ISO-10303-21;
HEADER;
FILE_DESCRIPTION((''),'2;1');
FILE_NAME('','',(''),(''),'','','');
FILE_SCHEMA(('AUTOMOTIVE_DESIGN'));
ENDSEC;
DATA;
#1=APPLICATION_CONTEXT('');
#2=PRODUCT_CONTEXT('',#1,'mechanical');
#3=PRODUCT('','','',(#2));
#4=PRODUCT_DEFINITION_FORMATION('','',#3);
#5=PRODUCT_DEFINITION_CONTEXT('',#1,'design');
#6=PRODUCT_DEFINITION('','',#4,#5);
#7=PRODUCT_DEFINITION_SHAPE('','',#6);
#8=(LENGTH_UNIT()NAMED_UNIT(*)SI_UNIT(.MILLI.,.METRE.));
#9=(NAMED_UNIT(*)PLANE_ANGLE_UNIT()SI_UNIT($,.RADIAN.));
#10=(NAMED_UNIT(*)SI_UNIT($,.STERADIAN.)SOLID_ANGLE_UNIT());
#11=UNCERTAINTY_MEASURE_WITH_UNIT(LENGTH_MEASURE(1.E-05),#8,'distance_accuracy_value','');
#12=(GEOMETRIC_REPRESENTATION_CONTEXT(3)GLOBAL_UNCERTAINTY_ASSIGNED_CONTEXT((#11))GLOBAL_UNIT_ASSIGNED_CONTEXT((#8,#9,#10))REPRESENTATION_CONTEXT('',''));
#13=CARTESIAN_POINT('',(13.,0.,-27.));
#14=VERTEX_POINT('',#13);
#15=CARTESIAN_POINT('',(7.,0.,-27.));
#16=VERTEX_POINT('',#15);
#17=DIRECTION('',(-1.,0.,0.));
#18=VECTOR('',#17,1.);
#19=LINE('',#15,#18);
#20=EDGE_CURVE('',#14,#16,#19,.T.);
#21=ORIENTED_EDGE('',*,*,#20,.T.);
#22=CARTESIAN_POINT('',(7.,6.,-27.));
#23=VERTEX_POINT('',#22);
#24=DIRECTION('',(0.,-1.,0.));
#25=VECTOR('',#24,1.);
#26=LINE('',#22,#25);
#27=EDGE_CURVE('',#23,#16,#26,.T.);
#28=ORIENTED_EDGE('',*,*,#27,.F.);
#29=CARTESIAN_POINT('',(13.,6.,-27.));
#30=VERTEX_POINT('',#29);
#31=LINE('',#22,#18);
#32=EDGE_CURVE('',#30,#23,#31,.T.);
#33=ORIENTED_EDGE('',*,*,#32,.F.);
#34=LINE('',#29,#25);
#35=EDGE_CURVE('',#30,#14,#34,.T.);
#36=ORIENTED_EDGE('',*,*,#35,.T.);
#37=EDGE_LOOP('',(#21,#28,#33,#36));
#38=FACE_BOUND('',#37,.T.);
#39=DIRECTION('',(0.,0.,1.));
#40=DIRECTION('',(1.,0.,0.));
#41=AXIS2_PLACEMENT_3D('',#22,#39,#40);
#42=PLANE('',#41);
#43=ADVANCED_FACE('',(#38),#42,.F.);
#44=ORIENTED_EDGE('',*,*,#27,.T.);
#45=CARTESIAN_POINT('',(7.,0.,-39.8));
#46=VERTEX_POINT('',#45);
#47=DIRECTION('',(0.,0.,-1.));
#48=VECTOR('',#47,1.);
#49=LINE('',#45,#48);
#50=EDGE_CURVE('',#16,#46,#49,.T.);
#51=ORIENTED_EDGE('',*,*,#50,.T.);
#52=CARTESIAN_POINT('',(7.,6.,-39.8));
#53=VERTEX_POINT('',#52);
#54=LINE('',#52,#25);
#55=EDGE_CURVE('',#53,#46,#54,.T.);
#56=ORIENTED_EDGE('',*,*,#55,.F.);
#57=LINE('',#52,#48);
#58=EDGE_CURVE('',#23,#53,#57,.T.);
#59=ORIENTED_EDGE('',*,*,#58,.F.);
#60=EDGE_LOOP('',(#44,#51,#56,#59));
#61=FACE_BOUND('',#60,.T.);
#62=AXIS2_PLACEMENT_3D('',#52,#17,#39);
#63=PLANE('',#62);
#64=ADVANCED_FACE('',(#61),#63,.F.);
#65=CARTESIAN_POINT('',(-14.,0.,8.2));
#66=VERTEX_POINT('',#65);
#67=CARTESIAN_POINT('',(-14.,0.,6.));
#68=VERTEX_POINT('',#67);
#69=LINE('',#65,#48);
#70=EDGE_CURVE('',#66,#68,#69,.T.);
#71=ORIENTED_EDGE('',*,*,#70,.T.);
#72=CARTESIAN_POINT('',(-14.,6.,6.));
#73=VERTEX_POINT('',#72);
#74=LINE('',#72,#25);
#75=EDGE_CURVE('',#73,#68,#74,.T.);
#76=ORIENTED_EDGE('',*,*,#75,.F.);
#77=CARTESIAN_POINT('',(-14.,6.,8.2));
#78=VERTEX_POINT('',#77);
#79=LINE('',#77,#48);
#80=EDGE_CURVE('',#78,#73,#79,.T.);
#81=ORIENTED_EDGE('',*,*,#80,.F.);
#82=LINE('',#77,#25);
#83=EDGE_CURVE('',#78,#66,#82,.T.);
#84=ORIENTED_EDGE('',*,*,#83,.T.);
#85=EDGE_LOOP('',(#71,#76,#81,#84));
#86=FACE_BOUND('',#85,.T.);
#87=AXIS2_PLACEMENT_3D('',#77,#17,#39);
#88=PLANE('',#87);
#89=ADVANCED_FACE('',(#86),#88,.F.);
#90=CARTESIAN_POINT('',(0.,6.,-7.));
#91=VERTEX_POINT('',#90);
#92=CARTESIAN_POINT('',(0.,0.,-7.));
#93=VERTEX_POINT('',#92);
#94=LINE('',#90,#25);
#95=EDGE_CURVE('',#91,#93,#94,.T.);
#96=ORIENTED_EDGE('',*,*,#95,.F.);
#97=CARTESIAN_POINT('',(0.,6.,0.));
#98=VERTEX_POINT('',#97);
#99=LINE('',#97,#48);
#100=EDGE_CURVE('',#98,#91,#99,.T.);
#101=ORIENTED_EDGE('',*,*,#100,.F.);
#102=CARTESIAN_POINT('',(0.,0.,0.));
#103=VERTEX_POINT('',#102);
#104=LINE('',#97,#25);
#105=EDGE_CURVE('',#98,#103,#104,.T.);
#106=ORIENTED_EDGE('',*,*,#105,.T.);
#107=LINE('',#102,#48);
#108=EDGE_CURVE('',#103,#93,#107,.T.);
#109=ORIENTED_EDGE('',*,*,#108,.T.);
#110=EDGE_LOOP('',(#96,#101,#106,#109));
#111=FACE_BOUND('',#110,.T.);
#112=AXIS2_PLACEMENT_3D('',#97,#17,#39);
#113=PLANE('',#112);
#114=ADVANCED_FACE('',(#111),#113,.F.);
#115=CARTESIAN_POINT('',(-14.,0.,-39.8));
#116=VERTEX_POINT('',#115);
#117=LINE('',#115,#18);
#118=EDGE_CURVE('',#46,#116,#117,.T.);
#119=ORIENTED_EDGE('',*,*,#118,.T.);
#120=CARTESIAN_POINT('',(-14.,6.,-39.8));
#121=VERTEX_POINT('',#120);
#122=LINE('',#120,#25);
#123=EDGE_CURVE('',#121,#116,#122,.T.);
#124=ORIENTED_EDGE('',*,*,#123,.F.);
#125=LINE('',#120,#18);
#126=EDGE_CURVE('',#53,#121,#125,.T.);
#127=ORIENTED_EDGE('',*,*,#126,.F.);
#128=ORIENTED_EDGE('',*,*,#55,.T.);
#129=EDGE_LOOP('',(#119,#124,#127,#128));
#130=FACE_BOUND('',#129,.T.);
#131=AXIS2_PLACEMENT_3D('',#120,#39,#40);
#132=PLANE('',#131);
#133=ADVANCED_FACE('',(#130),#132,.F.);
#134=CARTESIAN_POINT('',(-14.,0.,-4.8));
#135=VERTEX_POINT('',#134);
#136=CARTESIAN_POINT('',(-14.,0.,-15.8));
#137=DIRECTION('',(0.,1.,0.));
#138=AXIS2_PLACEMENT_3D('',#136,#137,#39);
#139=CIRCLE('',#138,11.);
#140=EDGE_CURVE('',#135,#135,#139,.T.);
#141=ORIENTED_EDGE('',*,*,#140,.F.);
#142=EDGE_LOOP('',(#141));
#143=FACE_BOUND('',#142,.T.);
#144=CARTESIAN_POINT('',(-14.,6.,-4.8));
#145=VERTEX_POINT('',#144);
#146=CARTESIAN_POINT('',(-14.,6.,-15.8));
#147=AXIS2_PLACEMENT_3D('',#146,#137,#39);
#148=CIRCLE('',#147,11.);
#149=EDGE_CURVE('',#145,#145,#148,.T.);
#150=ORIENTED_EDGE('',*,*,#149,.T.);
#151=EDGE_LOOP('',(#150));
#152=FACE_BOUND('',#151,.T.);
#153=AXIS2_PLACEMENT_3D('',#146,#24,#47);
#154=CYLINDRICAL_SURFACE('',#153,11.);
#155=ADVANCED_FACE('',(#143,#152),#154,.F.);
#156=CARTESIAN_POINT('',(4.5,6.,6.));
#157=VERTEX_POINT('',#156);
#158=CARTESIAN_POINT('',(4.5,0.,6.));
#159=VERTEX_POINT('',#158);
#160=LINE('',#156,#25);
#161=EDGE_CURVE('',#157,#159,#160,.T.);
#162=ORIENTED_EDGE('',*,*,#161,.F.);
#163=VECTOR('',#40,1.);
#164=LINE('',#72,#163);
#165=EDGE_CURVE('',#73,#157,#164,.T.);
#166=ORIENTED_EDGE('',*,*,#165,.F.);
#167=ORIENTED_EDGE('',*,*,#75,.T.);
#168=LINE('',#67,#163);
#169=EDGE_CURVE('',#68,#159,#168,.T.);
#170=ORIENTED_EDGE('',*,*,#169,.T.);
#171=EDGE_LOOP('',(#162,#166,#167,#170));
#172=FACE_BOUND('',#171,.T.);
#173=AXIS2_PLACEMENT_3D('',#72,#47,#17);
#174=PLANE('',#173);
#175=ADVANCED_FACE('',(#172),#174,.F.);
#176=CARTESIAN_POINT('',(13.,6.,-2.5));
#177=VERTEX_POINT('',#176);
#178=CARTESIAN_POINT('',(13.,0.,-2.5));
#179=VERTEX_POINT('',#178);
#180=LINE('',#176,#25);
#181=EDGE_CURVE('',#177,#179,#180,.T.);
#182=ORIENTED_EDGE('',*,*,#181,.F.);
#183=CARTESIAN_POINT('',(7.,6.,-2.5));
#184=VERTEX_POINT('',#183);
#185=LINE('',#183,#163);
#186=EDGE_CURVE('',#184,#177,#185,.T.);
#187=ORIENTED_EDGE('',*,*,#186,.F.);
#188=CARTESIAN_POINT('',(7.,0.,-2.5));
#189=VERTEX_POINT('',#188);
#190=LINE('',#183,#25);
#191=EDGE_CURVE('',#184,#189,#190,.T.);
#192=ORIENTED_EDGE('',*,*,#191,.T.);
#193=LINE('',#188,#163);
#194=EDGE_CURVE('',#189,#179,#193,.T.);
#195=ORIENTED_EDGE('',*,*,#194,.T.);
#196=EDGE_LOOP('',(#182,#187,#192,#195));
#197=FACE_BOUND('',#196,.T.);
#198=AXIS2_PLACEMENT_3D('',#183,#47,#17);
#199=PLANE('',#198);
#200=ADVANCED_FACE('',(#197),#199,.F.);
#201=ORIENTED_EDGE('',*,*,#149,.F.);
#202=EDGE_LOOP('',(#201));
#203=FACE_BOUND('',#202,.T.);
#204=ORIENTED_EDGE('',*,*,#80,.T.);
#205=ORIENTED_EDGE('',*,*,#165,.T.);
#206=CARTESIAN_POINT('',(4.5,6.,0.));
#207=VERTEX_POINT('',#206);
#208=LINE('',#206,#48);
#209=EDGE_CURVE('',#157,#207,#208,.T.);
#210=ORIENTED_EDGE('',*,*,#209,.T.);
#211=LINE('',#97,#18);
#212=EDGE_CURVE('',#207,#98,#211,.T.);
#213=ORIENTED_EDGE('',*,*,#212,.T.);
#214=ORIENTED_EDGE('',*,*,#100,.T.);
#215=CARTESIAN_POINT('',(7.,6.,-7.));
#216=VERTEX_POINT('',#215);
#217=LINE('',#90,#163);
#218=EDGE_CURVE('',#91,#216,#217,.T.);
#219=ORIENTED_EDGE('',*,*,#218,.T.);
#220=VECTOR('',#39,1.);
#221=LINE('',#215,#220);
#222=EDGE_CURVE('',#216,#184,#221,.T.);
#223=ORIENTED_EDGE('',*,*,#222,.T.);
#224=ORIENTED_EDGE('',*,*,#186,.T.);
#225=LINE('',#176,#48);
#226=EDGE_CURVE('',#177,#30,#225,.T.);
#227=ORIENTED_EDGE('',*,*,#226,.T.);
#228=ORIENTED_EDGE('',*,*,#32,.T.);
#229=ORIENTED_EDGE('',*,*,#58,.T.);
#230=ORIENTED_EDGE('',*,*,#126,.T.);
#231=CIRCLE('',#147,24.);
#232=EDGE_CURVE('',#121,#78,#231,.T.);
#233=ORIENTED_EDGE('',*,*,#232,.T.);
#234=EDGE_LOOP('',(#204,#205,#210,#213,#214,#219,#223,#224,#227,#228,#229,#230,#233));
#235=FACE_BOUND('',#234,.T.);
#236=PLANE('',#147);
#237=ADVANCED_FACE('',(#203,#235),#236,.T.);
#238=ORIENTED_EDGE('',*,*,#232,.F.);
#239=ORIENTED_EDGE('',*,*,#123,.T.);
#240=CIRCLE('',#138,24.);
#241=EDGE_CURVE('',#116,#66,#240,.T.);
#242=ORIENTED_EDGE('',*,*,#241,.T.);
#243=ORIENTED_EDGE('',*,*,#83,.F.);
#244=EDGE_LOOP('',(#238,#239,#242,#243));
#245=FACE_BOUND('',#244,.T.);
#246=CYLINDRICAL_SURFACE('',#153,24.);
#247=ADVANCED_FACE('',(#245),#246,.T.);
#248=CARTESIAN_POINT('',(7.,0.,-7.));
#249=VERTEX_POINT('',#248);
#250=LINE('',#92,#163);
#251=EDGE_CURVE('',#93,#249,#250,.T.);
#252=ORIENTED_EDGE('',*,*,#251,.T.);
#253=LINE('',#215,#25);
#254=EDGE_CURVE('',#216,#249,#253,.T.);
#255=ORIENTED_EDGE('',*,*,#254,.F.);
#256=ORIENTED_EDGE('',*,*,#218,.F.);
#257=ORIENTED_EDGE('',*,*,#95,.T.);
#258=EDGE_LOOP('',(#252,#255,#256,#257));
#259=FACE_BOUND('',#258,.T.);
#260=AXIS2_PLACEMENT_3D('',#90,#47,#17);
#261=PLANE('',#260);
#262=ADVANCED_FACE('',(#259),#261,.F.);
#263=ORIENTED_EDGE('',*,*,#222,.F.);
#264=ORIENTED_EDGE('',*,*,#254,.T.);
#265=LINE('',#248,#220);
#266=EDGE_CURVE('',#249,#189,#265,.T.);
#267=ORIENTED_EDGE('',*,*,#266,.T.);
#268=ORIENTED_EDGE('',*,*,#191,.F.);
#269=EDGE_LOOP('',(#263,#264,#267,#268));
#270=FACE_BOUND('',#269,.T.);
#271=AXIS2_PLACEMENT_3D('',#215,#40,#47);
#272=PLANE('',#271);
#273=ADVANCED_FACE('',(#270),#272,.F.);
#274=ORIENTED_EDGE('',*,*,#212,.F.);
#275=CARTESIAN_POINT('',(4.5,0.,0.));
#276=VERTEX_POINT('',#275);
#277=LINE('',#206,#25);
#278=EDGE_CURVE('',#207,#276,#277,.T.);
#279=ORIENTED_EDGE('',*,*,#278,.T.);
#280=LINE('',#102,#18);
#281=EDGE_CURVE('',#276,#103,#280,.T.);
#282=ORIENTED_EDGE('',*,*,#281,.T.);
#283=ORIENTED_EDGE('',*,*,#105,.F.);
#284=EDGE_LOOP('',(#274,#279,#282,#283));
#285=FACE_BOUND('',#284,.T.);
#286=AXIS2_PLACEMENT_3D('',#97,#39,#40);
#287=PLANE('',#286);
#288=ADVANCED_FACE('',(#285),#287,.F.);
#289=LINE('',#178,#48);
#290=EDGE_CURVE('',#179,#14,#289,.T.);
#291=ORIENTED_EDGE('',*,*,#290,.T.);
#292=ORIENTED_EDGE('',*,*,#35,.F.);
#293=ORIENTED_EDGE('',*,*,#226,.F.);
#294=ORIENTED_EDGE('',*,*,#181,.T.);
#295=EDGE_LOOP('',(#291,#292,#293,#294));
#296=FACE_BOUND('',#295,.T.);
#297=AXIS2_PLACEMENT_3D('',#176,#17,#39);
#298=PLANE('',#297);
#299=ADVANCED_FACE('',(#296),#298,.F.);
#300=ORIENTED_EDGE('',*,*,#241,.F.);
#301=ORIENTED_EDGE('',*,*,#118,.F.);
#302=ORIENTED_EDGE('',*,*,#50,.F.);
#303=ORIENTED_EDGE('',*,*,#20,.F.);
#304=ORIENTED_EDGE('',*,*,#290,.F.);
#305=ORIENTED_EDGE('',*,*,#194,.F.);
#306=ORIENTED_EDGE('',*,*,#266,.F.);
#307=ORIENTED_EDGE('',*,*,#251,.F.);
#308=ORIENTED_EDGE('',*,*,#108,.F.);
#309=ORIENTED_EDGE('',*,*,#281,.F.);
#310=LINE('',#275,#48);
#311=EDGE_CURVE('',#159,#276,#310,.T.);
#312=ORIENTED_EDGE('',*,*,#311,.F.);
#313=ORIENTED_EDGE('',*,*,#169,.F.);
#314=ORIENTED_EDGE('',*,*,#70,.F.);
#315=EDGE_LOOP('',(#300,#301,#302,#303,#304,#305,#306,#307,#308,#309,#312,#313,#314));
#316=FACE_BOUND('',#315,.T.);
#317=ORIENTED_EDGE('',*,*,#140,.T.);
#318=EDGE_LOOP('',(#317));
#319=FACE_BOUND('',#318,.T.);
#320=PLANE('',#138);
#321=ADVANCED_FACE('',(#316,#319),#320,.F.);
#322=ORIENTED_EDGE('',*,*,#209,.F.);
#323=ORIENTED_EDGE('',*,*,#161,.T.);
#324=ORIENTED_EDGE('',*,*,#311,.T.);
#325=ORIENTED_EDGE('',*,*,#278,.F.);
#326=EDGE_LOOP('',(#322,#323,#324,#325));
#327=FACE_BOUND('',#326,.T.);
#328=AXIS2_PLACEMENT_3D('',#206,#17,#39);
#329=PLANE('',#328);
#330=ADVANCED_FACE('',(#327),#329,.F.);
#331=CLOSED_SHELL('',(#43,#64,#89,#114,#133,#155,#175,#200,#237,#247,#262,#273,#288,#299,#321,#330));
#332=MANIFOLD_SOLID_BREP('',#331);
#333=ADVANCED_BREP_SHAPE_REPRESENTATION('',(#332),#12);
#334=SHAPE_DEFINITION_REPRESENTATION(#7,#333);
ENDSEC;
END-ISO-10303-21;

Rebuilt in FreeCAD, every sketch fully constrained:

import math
import FreeCAD as App
import Part
import Sketcher

V = App.Vector
Q = App.Units.Quantity

doc = App.newDocument("Part")
body = doc.addObject("PartDesign::Body", "Body")

# Sketch on XZ plane
sketch1 = body.newObject("Sketcher::SketchObject", "Sketch")
sketch1.AttachmentSupport = (doc.getObject("XZ_Plane"), [""])
sketch1.MapMode = "FlatFace"
sketch1.addGeometry(Part.LineSegment(V(0, 0, 0), V(0, -7, 0)), False)
sketch1.addGeometry(Part.LineSegment(V(0, -7, 0), V(7, -7, 0)), False)
sketch1.addGeometry(Part.LineSegment(V(7, -7, 0), V(7, -2.5, 0)), False)
sketch1.addGeometry(Part.LineSegment(V(7, -2.5, 0), V(13, -2.5, 0)), False)
sketch1.addGeometry(Part.LineSegment(V(13, -2.5, 0), V(13, -27, 0)), False)
sketch1.addGeometry(Part.LineSegment(V(13, -27, 0), V(7, -27, 0)), False)
sketch1.addGeometry(Part.LineSegment(V(7, -27, 0), V(7, -39.8, 0)), False)
sketch1.addGeometry(Part.LineSegment(V(7, -39.8, 0), V(-14, -39.8, 0)), False)
sketch1.addGeometry(Part.ArcOfCircle(Part.Circle(V(-14, -15.8, 0), V(0, 0, 1), 24), math.radians(90), math.radians(270)), False)
sketch1.addGeometry(Part.LineSegment(V(-14, 8.2, 0), V(-14, 6, 0)), False)
sketch1.addGeometry(Part.LineSegment(V(-14, 6, 0), V(4.5, 6, 0)), False)
sketch1.addGeometry(Part.LineSegment(V(4.5, 6, 0), V(4.5, 0, 0)), False)
sketch1.addGeometry(Part.LineSegment(V(4.5, 0, 0), V(0, 0, 0)), False)
sketch1.addGeometry(Part.Circle(V(-14, -15.8, 0), V(0, 0, 1), 11), False)
sketch1.addConstraint(Sketcher.Constraint("Coincident", 0, 2, 1, 1))
sketch1.addConstraint(Sketcher.Constraint("Coincident", 1, 2, 2, 1))
sketch1.addConstraint(Sketcher.Constraint("Coincident", 2, 2, 3, 1))
sketch1.addConstraint(Sketcher.Constraint("Coincident", 3, 2, 4, 1))
sketch1.addConstraint(Sketcher.Constraint("Coincident", 4, 2, 5, 1))
sketch1.addConstraint(Sketcher.Constraint("Coincident", 5, 2, 6, 1))
sketch1.addConstraint(Sketcher.Constraint("Coincident", 6, 2, 7, 1))
sketch1.addConstraint(Sketcher.Constraint("Tangent", 7, 2, 8, 2))
sketch1.addConstraint(Sketcher.Constraint("Coincident", 8, 1, 9, 1))
sketch1.addConstraint(Sketcher.Constraint("Coincident", 9, 2, 10, 1))
sketch1.addConstraint(Sketcher.Constraint("Coincident", 10, 2, 11, 1))
sketch1.addConstraint(Sketcher.Constraint("Coincident", 11, 2, 12, 1))
sketch1.addConstraint(Sketcher.Constraint("Coincident", 12, 2, 0, 1))
sketch1.addConstraint(Sketcher.Constraint("Vertical", 0))
sketch1.addConstraint(Sketcher.Constraint("Horizontal", 1))
sketch1.addConstraint(Sketcher.Constraint("Vertical", 2))
sketch1.addConstraint(Sketcher.Constraint("Horizontal", 3))
sketch1.addConstraint(Sketcher.Constraint("Vertical", 4))
sketch1.addConstraint(Sketcher.Constraint("Horizontal", 5))
sketch1.addConstraint(Sketcher.Constraint("Vertical", 6))
sketch1.addConstraint(Sketcher.Constraint("Horizontal", 7))
sketch1.addConstraint(Sketcher.Constraint("Vertical", 9))
sketch1.addConstraint(Sketcher.Constraint("Horizontal", 10))
sketch1.addConstraint(Sketcher.Constraint("Vertical", 11))
sketch1.addConstraint(Sketcher.Constraint("Horizontal", 12))
sketch1.addConstraint(Sketcher.Constraint("Coincident", 12, 2, -1, 1))
sketch1.addConstraint(Sketcher.Constraint("Coincident", 13, 3, 8, 3))
sketch1.addConstraint(Sketcher.Constraint("Vertical", 2, 2, 5, 2))
sketch1.addConstraint(Sketcher.Constraint("Vertical", 7, 2, 8, 1))
sketch1.addConstraint(Sketcher.Constraint("Equal", 1, 0))
sketch1.addConstraint(Sketcher.Constraint("Equal", 12, 2))
sketch1.addConstraint(Sketcher.Constraint("Equal", 5, 11))
sketch1.addConstraint(Sketcher.Constraint("Diameter", 13, Q("22 mm")))
sketch1.addConstraint(Sketcher.Constraint("Radius", 8, Q("24 mm")))
sketch1.addConstraint(Sketcher.Constraint("DistanceX", 1, 1, 1, 2, Q("7 mm")))
sketch1.addConstraint(Sketcher.Constraint("DistanceX", 3, 1, 3, 2, Q("6 mm")))
sketch1.addConstraint(Sketcher.Constraint("DistanceX", 7, 2, 7, 1, Q("21 mm")))
sketch1.addConstraint(Sketcher.Constraint("DistanceX", 10, 1, 10, 2, Q("18.5 mm")))
sketch1.addConstraint(Sketcher.Constraint("DistanceY", 4, 2, 4, 1, Q("24.5 mm")))
sketch1.addConstraint(Sketcher.Constraint("DistanceY", 6, 2, 6, 1, Q("12.8 mm")))
pad1 = body.newObject("PartDesign::Pad", "Pad")
pad1.Profile = sketch1
pad1.Length = 6
pad1.Reversed = True

doc.recompute()
